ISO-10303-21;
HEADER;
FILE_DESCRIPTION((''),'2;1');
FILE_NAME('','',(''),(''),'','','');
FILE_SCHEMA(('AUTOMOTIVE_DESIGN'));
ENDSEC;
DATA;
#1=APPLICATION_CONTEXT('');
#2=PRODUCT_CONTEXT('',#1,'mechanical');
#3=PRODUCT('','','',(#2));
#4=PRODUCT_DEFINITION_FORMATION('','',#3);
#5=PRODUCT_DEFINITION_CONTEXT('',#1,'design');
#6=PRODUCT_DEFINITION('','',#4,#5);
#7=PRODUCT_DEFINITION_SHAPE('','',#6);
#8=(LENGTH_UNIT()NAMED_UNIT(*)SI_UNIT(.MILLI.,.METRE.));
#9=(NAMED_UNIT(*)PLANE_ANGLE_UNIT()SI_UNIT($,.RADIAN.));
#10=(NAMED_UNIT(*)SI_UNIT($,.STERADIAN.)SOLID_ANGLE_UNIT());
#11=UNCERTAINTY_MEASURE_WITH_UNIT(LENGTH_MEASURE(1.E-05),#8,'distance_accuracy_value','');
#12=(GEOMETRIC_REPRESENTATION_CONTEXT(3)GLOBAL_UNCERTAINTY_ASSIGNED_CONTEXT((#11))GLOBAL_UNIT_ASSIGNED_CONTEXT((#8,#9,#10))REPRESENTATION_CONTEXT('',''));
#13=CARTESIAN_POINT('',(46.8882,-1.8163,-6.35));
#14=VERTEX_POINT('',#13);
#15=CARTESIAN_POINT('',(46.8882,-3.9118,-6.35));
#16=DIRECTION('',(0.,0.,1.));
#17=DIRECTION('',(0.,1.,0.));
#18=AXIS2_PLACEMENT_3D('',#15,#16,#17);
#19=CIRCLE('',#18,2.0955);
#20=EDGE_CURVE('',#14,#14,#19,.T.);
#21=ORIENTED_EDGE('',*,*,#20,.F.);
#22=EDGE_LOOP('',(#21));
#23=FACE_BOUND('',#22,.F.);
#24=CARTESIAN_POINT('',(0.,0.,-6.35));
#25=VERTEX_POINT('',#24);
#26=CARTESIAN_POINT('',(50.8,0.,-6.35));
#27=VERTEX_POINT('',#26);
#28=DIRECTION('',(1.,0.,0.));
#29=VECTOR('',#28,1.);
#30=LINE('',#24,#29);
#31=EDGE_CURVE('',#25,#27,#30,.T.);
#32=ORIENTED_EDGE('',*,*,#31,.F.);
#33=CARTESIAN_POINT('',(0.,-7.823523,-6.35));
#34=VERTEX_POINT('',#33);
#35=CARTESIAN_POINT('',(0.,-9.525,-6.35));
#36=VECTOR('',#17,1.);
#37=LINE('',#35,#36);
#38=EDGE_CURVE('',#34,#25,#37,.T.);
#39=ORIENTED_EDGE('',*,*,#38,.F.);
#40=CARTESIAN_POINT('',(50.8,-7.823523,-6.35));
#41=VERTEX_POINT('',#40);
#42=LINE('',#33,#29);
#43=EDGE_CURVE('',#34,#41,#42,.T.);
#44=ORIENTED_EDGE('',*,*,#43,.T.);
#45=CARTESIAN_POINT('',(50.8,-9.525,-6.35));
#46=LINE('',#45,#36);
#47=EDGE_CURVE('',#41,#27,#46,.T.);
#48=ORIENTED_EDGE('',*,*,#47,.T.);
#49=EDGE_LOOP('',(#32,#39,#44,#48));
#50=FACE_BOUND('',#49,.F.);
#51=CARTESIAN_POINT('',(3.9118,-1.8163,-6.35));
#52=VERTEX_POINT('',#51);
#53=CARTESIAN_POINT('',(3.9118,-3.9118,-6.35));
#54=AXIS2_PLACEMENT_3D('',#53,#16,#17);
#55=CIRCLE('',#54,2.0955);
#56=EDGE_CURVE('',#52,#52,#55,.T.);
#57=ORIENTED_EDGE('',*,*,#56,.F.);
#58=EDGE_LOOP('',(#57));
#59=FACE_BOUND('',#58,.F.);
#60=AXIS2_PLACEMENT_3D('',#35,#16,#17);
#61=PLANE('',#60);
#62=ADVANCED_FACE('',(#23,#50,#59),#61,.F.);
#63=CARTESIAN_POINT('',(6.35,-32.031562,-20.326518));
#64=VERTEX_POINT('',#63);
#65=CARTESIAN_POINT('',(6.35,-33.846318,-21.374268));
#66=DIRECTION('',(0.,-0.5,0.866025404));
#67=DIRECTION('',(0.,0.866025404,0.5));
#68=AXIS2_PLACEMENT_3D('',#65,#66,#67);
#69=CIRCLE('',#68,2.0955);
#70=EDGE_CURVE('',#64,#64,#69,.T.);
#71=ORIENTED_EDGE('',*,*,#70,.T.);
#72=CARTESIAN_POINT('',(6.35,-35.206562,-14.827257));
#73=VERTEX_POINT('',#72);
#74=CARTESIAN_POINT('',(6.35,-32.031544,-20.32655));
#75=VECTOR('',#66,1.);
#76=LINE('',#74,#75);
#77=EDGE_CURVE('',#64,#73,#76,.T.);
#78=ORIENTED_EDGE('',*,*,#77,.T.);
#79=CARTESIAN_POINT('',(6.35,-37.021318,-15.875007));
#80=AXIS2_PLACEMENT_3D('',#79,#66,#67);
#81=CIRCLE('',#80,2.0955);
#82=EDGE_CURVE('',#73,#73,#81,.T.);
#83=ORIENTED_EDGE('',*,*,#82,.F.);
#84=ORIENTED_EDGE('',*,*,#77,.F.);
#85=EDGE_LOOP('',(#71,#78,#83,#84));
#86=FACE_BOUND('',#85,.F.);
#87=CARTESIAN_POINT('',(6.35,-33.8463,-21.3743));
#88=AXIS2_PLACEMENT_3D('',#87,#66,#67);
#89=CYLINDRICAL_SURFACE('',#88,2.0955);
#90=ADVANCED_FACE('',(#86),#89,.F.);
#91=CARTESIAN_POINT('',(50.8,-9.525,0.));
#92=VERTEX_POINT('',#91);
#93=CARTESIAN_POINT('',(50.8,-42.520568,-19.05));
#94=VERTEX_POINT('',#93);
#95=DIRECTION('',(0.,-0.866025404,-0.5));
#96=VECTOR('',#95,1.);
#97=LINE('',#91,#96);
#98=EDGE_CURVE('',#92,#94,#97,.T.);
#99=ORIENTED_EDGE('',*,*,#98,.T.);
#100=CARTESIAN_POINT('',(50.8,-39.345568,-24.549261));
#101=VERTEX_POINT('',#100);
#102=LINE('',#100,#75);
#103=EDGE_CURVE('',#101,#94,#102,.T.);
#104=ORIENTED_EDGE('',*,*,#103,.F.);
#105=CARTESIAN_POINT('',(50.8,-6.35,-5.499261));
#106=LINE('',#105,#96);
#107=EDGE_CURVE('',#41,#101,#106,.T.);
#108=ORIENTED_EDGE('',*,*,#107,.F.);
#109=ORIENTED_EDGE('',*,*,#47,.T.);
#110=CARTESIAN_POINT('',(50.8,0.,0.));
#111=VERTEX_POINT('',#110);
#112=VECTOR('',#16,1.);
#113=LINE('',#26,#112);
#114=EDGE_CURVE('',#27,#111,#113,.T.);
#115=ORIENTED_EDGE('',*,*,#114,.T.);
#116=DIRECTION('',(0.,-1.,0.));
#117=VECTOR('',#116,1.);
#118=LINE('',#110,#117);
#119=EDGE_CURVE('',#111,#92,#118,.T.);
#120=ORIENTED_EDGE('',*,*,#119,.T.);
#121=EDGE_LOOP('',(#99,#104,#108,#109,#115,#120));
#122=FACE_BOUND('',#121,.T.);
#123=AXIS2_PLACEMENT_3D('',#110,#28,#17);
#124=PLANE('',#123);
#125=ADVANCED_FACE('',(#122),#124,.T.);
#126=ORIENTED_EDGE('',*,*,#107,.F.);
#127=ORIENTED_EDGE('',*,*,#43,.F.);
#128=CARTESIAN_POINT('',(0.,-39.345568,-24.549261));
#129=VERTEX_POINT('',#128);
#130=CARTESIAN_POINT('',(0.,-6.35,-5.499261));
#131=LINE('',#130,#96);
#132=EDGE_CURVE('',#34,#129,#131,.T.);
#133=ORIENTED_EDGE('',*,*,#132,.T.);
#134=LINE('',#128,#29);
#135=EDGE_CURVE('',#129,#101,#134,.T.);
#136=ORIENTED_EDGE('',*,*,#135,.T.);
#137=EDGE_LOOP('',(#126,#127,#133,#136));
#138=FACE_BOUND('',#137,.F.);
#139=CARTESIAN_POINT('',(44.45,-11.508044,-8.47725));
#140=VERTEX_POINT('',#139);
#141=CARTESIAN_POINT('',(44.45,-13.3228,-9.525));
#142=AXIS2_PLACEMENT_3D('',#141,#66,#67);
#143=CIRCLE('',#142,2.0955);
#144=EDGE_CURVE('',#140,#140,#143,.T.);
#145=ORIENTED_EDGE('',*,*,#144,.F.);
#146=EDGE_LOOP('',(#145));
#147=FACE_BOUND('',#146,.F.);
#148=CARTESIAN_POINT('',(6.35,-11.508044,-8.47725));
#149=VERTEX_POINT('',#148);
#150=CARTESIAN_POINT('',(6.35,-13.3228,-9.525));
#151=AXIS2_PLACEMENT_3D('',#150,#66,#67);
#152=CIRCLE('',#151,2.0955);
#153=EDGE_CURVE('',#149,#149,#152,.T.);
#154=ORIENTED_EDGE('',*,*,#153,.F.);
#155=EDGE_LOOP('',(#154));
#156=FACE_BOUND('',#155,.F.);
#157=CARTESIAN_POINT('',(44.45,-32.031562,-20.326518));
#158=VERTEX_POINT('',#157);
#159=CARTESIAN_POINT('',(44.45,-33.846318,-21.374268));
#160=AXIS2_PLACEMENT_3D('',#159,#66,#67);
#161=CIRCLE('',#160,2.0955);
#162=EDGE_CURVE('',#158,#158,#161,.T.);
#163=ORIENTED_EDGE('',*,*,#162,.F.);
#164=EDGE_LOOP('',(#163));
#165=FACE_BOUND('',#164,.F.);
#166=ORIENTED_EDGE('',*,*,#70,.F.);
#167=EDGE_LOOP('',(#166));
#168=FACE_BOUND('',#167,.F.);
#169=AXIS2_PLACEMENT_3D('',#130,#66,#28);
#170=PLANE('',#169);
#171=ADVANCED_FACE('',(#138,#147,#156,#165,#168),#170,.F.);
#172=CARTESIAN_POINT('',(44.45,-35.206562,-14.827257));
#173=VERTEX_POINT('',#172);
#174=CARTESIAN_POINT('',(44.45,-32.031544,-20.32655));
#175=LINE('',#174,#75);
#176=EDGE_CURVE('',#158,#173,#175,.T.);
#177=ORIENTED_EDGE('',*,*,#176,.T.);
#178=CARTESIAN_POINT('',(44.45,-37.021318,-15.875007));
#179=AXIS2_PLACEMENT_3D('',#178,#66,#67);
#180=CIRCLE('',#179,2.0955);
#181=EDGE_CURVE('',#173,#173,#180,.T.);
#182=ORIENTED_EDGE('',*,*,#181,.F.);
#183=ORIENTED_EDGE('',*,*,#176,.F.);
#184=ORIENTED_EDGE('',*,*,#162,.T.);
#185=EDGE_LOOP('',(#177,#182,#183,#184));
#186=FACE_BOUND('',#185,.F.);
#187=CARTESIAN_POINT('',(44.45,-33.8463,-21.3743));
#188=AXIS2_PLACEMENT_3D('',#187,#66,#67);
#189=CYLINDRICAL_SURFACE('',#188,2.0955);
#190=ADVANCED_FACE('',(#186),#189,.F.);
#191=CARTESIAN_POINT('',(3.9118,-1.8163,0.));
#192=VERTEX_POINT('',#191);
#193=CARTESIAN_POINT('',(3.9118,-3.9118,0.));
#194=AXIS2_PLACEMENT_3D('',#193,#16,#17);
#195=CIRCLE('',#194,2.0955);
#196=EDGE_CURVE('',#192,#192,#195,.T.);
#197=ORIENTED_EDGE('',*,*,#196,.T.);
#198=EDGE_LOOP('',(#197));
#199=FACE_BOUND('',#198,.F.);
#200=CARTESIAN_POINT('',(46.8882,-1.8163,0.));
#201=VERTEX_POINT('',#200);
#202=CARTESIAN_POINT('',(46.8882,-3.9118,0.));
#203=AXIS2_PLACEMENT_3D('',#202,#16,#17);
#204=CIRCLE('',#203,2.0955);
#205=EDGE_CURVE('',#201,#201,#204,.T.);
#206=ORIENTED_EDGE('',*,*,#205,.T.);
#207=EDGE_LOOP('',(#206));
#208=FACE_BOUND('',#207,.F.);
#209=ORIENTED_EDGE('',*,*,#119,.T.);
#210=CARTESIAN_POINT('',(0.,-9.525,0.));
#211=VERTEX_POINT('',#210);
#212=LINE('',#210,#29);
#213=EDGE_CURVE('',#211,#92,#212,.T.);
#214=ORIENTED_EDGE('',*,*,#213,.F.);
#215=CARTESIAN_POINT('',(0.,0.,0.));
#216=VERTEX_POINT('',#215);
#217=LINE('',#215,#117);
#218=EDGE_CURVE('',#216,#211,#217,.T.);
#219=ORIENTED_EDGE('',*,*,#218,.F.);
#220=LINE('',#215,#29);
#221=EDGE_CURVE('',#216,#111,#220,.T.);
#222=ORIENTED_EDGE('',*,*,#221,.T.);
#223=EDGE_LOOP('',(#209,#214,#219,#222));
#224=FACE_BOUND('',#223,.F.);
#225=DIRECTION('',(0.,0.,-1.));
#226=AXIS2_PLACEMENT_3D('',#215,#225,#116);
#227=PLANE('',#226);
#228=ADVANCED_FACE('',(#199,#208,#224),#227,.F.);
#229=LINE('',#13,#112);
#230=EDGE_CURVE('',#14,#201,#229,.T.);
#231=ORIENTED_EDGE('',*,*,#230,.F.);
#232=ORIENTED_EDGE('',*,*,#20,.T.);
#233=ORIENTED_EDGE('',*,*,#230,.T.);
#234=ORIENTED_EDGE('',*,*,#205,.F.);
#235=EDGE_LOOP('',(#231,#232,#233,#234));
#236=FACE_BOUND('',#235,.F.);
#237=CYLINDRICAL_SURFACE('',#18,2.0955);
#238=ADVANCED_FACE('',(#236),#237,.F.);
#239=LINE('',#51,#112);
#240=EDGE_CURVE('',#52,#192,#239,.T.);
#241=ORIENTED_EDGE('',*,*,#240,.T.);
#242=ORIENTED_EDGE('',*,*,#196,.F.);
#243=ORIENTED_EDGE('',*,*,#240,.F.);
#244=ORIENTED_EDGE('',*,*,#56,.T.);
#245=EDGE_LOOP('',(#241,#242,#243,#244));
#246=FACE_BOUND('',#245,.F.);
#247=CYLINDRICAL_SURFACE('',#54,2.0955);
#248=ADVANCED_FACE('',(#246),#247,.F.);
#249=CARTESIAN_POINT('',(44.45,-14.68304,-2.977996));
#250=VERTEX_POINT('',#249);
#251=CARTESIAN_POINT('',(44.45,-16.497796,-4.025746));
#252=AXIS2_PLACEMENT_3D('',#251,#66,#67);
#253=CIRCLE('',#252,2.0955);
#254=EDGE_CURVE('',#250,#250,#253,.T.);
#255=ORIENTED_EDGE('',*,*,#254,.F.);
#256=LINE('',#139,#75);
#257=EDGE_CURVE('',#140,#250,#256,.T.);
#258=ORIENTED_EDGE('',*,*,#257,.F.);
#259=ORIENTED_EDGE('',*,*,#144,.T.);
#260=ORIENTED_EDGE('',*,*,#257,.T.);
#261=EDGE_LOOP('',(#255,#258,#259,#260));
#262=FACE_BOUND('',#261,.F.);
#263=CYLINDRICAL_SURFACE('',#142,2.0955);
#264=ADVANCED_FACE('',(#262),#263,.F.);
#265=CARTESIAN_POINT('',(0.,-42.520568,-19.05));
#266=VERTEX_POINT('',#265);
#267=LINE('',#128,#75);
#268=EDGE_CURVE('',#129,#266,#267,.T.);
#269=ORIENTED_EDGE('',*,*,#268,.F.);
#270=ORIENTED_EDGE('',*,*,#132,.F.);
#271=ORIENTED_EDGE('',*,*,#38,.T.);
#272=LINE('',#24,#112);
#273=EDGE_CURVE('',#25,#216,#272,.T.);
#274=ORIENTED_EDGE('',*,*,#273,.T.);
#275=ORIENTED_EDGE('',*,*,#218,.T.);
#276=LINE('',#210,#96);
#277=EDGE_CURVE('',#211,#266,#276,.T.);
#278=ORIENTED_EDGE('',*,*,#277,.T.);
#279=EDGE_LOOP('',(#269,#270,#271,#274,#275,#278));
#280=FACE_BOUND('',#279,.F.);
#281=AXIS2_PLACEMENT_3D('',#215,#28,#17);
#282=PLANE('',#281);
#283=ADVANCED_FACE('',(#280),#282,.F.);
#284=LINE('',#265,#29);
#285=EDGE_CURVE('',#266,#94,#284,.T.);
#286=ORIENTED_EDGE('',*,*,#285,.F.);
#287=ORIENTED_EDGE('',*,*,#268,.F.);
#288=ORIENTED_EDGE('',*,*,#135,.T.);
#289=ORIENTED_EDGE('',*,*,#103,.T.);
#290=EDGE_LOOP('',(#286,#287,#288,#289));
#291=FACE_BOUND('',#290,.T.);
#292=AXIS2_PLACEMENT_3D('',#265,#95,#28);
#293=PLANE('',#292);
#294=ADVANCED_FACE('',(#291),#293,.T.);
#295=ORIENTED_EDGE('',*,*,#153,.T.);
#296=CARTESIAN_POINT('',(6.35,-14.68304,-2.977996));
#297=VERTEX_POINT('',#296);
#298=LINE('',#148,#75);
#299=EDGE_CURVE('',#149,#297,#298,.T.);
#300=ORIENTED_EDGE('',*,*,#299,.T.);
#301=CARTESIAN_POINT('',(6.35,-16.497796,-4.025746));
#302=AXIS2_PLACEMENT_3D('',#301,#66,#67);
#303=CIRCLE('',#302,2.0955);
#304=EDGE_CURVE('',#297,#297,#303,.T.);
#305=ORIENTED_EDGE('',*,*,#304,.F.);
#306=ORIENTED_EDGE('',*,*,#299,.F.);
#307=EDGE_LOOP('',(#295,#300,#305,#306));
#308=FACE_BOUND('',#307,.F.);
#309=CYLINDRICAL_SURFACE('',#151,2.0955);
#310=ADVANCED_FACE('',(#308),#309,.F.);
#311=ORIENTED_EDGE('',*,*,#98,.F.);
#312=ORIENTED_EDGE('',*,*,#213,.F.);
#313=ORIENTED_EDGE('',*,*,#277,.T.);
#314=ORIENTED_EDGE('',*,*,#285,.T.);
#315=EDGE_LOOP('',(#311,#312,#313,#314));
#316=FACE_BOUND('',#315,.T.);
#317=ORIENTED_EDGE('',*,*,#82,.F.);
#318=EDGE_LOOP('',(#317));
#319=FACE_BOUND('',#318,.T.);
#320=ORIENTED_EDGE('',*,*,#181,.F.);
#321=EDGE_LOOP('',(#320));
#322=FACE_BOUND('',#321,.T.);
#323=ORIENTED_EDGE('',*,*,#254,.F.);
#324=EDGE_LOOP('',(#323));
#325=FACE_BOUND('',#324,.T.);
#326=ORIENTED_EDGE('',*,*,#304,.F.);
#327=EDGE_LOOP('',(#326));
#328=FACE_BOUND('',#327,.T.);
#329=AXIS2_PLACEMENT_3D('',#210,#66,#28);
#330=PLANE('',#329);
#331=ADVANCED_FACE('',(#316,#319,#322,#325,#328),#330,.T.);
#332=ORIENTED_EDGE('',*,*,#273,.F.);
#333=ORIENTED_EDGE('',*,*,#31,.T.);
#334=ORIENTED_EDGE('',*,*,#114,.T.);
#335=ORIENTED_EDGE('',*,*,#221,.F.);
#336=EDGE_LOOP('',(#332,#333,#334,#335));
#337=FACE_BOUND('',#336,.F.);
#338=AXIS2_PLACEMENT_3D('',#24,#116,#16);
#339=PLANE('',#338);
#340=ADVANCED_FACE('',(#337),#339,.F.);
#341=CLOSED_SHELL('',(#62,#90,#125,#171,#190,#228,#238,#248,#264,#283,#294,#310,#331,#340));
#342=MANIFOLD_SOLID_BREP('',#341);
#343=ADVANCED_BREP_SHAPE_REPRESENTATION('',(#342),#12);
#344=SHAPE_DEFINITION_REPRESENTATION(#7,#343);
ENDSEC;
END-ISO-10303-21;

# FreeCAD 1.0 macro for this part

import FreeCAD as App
import Part
import Sketcher
Q = App.Units.Quantity

doc = App.newDocument("Part")
body = doc.addObject("PartDesign::Body", "Body")

# Sketch on YZ plane
sketch1 = body.newObject("Sketcher::SketchObject", "Sketch")
sketch1.AttachmentSupport = (doc.getObject("YZ_Plane"), [""])
sketch1.MapMode = "FlatFace"
sketch1.addGeometry([
    Part.LineSegment(App.Vector(0, -6, 0), App.Vector(0, 0, 0)),
    Part.LineSegment(App.Vector(0, 0, 0), App.Vector(-10, 0, 0)),
    Part.LineSegment(App.Vector(-10, 0, 0), App.Vector(-10, -6, 0)),
    Part.LineSegment(App.Vector(-10, -6, 0), App.Vector(0, -6, 0)),
], False)
sketch1.addConstraint([
    Sketcher.Constraint("Coincident", 0, 2, 1, 1),
    Sketcher.Constraint("Coincident", 1, 2, 2, 1),
    Sketcher.Constraint("Coincident", 2, 2, 3, 1),
    Sketcher.Constraint("Coincident", 3, 2, 0, 1),
    Sketcher.Constraint("Vertical", 0),
    Sketcher.Constraint("Horizontal", 1),
    Sketcher.Constraint("Vertical", 2),
    Sketcher.Constraint("Horizontal", 3),
    Sketcher.Constraint("Coincident", 0, 2, -1, 1),
    Sketcher.Constraint("DistanceY", 0, 1, 0, 2, Q("0.25 in")),
    Sketcher.Constraint("DistanceX", 1, 2, 1, 1, Q("0.375 in")),
])
pad1 = body.newObject("PartDesign::Pad", "Pad")
pad1.Profile = sketch1
pad1.Length = Q("2 in")

# Sketch on an angled plane
sketch2 = body.newObject("Sketcher::SketchObject", "Sketch001")
sketch2.Placement = App.Placement(App.Vector(0, -9.525, 0), App.Rotation(App.Vector(1, 0, 0), App.Vector(0, -0.5, 0.866025404), App.Vector(0, -0.866025404, -0.5), "ZXY"))
sketch2.addGeometry([
    Part.LineSegment(App.Vector(51, 0, 0), App.Vector(0, 0, 0)),
    Part.LineSegment(App.Vector(0, 0, 0), App.Vector(0, -6, 0)),
    Part.LineSegment(App.Vector(0, -6, 0), App.Vector(51, -6, 0)),
    Part.LineSegment(App.Vector(51, -6, 0), App.Vector(51, 0, 0)),
], False)
sketch2.addConstraint([
    Sketcher.Constraint("Coincident", 0, 2, 1, 1),
    Sketcher.Constraint("Coincident", 1, 2, 2, 1),
    Sketcher.Constraint("Coincident", 2, 2, 3, 1),
    Sketcher.Constraint("Coincident", 3, 2, 0, 1),
    Sketcher.Constraint("Horizontal", 0),
    Sketcher.Constraint("Vertical", 1),
    Sketcher.Constraint("Horizontal", 2),
    Sketcher.Constraint("Vertical", 3),
    Sketcher.Constraint("Coincident", 0, 2, -1, 1),
    Sketcher.Constraint("DistanceY", 1, 2, 1, 1, Q("0.25 in")),
    Sketcher.Constraint("DistanceX", 0, 2, 0, 1, Q("2 in")),
])
pad2 = body.newObject("PartDesign::Pad", "Pad001")
pad2.Profile = sketch2
pad2.Length = Q("1.5 in")

# Sketch on XY plane
sketch3 = body.newObject("Sketcher::SketchObject", "Sketch002")
sketch3.AttachmentSupport = (doc.getObject("XY_Plane"), [""])
sketch3.MapMode = "FlatFace"
sketch3.AttachmentOffset = App.Placement(App.Vector(0, 0, -0.25 * 25.4), App.Rotation())
sketch3.addGeometry([
    Part.Circle(App.Vector(46.9, -3.9, 0), App.Vector(0, 0, 1), 2.1),
    Part.Circle(App.Vector(3.9, -3.9, 0), App.Vector(0, 0, 1), 2.1),
], False)
sketch3.addConstraint([
    Sketcher.Constraint("Equal", 0, 1),
    Sketcher.Constraint("Horizontal", 0, 3, 1, 3),
    Sketcher.Constraint("Diameter", 0, Q("0.165 in")),
    Sketcher.Constraint("DistanceX", -1, 1, 0, 3, Q("1.846 in")),
    Sketcher.Constraint("DistanceY", 0, 3, -1, 1, Q("0.154 in")),
    Sketcher.Constraint("DistanceX", -1, 1, 1, 3, Q("0.154 in")),
])
doc.recompute()
hole = body.newObject("PartDesign::Hole", "Hole")
hole.Profile = sketch3
hole.ThreadType = "None"
hole.Diameter = Q("0.165 in")
hole.DepthType = "ThroughAll"
hole.Reversed = True

# Sketch on an angled plane
sketch4 = body.newObject("Sketcher::SketchObject", "Sketch003")
sketch4.Placement = App.Placement(App.Vector(0, 0.793746, -1.374808), App.Rotation(App.Vector(0, 0.866025404, 0.5), App.Vector(1, 0, 0), App.Vector(0, 0.5, -0.866025404), "ZXY"))
sketch4.addGeometry([
    Part.Circle(App.Vector(-16.3, 6.4, 0), App.Vector(0, 0, 1), 2.1),
    Part.Circle(App.Vector(-40, 6.4, 0), App.Vector(0, 0, 1), 2.1),
    Part.Circle(App.Vector(-16.3, 44.5, 0), App.Vector(0, 0, 1), 2.1),
    Part.Circle(App.Vector(-40, 44.5, 0), App.Vector(0, 0, 1), 2.1),
], False)
sketch4.addConstraint([
    Sketcher.Constraint("Equal", 0, 1),
    Sketcher.Constraint("Equal", 1, 2),
    Sketcher.Constraint("Equal", 2, 3),
    Sketcher.Constraint("Horizontal", 0, 3, 1, 3),
    Sketcher.Constraint("Horizontal", 2, 3, 3, 3),
    Sketcher.Constraint("Vertical", 0, 3, 2, 3),
    Sketcher.Constraint("Vertical", 1, 3, 3, 3),
    Sketcher.Constraint("Diameter", 0, Q("0.165 in")),
    Sketcher.Constraint("DistanceY", 0, 3, 2, 3, Q("1.5 in")),
    Sketcher.Constraint("DistanceY", -1, 1, 0, 3, Q("0.25 in")),
    Sketcher.Constraint("DistanceX", 0, 3, -1, 1, 16.3004),
    Sketcher.Constraint("DistanceX", 1, 3, -1, 1, 39.999),
])
doc.recompute()
hole2 = body.newObject("PartDesign::Hole", "Hole001")
hole2.Profile = sketch4
hole2.ThreadType = "None"
hole2.Diameter = Q("0.165 in")
hole2.DepthType = "ThroughAll"

doc.recompute()
